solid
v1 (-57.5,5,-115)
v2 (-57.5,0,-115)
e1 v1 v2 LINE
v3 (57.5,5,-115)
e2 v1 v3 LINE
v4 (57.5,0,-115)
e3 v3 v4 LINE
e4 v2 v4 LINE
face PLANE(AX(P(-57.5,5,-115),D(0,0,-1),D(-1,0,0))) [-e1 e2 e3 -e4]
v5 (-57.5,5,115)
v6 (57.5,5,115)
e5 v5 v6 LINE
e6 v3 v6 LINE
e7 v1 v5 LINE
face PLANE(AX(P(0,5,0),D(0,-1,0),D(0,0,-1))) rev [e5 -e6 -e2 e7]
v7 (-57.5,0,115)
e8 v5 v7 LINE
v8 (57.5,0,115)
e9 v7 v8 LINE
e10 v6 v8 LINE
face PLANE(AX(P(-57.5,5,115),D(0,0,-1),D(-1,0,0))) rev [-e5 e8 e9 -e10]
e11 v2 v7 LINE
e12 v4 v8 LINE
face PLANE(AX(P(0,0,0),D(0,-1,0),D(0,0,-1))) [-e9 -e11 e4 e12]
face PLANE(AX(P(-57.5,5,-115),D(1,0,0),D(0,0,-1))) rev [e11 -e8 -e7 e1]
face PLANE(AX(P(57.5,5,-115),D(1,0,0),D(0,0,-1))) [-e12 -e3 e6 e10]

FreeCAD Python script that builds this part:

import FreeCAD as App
import Part
import Sketcher

V = App.Vector
Q = App.Units.Quantity

doc = App.newDocument("Part")
body = doc.addObject("PartDesign::Body", "Body")

# Sketch on XZ plane
sketch1 = body.newObject("Sketcher::SketchObject", "Sketch")
sketch1.AttachmentSupport = (doc.getObject("XZ_Plane"), [""])
sketch1.MapMode = "FlatFace"
sketch1.addGeometry([
    Part.LineSegment(V(-58, -115, 0), V(-58, 115, 0)),
    Part.LineSegment(V(-58, 115, 0), V(58, 115, 0)),
    Part.LineSegment(V(58, 115, 0), V(58, -115, 0)),
    Part.LineSegment(V(58, -115, 0), V(-58, -115, 0)),
], False)
sketch1.addConstraint([
    Sketcher.Constraint("Coincident", 0, 2, 1, 1),
    Sketcher.Constraint("Coincident", 1, 2, 2, 1),
    Sketcher.Constraint("Coincident", 2, 2, 3, 1),
    Sketcher.Constraint("Coincident", 3, 2, 0, 1),
    Sketcher.Constraint("Vertical", 0),
    Sketcher.Constraint("Horizontal", 1),
    Sketcher.Constraint("Vertical", 2),
    Sketcher.Constraint("Horizontal", 3),
    Sketcher.Constraint("Symmetric", 0, 2, 2, 2, -1, 1),
    Sketcher.Constraint("DistanceX", 1, 1, 1, 2, Q("115 mm")),
    Sketcher.Constraint("DistanceY", 0, 1, 0, 2, Q("230 mm")),
])
pad1 = body.newObject("PartDesign::Pad", "Pad")
pad1.Profile = sketch1
pad1.Length = 5
pad1.Reversed = True

doc.recompute()
